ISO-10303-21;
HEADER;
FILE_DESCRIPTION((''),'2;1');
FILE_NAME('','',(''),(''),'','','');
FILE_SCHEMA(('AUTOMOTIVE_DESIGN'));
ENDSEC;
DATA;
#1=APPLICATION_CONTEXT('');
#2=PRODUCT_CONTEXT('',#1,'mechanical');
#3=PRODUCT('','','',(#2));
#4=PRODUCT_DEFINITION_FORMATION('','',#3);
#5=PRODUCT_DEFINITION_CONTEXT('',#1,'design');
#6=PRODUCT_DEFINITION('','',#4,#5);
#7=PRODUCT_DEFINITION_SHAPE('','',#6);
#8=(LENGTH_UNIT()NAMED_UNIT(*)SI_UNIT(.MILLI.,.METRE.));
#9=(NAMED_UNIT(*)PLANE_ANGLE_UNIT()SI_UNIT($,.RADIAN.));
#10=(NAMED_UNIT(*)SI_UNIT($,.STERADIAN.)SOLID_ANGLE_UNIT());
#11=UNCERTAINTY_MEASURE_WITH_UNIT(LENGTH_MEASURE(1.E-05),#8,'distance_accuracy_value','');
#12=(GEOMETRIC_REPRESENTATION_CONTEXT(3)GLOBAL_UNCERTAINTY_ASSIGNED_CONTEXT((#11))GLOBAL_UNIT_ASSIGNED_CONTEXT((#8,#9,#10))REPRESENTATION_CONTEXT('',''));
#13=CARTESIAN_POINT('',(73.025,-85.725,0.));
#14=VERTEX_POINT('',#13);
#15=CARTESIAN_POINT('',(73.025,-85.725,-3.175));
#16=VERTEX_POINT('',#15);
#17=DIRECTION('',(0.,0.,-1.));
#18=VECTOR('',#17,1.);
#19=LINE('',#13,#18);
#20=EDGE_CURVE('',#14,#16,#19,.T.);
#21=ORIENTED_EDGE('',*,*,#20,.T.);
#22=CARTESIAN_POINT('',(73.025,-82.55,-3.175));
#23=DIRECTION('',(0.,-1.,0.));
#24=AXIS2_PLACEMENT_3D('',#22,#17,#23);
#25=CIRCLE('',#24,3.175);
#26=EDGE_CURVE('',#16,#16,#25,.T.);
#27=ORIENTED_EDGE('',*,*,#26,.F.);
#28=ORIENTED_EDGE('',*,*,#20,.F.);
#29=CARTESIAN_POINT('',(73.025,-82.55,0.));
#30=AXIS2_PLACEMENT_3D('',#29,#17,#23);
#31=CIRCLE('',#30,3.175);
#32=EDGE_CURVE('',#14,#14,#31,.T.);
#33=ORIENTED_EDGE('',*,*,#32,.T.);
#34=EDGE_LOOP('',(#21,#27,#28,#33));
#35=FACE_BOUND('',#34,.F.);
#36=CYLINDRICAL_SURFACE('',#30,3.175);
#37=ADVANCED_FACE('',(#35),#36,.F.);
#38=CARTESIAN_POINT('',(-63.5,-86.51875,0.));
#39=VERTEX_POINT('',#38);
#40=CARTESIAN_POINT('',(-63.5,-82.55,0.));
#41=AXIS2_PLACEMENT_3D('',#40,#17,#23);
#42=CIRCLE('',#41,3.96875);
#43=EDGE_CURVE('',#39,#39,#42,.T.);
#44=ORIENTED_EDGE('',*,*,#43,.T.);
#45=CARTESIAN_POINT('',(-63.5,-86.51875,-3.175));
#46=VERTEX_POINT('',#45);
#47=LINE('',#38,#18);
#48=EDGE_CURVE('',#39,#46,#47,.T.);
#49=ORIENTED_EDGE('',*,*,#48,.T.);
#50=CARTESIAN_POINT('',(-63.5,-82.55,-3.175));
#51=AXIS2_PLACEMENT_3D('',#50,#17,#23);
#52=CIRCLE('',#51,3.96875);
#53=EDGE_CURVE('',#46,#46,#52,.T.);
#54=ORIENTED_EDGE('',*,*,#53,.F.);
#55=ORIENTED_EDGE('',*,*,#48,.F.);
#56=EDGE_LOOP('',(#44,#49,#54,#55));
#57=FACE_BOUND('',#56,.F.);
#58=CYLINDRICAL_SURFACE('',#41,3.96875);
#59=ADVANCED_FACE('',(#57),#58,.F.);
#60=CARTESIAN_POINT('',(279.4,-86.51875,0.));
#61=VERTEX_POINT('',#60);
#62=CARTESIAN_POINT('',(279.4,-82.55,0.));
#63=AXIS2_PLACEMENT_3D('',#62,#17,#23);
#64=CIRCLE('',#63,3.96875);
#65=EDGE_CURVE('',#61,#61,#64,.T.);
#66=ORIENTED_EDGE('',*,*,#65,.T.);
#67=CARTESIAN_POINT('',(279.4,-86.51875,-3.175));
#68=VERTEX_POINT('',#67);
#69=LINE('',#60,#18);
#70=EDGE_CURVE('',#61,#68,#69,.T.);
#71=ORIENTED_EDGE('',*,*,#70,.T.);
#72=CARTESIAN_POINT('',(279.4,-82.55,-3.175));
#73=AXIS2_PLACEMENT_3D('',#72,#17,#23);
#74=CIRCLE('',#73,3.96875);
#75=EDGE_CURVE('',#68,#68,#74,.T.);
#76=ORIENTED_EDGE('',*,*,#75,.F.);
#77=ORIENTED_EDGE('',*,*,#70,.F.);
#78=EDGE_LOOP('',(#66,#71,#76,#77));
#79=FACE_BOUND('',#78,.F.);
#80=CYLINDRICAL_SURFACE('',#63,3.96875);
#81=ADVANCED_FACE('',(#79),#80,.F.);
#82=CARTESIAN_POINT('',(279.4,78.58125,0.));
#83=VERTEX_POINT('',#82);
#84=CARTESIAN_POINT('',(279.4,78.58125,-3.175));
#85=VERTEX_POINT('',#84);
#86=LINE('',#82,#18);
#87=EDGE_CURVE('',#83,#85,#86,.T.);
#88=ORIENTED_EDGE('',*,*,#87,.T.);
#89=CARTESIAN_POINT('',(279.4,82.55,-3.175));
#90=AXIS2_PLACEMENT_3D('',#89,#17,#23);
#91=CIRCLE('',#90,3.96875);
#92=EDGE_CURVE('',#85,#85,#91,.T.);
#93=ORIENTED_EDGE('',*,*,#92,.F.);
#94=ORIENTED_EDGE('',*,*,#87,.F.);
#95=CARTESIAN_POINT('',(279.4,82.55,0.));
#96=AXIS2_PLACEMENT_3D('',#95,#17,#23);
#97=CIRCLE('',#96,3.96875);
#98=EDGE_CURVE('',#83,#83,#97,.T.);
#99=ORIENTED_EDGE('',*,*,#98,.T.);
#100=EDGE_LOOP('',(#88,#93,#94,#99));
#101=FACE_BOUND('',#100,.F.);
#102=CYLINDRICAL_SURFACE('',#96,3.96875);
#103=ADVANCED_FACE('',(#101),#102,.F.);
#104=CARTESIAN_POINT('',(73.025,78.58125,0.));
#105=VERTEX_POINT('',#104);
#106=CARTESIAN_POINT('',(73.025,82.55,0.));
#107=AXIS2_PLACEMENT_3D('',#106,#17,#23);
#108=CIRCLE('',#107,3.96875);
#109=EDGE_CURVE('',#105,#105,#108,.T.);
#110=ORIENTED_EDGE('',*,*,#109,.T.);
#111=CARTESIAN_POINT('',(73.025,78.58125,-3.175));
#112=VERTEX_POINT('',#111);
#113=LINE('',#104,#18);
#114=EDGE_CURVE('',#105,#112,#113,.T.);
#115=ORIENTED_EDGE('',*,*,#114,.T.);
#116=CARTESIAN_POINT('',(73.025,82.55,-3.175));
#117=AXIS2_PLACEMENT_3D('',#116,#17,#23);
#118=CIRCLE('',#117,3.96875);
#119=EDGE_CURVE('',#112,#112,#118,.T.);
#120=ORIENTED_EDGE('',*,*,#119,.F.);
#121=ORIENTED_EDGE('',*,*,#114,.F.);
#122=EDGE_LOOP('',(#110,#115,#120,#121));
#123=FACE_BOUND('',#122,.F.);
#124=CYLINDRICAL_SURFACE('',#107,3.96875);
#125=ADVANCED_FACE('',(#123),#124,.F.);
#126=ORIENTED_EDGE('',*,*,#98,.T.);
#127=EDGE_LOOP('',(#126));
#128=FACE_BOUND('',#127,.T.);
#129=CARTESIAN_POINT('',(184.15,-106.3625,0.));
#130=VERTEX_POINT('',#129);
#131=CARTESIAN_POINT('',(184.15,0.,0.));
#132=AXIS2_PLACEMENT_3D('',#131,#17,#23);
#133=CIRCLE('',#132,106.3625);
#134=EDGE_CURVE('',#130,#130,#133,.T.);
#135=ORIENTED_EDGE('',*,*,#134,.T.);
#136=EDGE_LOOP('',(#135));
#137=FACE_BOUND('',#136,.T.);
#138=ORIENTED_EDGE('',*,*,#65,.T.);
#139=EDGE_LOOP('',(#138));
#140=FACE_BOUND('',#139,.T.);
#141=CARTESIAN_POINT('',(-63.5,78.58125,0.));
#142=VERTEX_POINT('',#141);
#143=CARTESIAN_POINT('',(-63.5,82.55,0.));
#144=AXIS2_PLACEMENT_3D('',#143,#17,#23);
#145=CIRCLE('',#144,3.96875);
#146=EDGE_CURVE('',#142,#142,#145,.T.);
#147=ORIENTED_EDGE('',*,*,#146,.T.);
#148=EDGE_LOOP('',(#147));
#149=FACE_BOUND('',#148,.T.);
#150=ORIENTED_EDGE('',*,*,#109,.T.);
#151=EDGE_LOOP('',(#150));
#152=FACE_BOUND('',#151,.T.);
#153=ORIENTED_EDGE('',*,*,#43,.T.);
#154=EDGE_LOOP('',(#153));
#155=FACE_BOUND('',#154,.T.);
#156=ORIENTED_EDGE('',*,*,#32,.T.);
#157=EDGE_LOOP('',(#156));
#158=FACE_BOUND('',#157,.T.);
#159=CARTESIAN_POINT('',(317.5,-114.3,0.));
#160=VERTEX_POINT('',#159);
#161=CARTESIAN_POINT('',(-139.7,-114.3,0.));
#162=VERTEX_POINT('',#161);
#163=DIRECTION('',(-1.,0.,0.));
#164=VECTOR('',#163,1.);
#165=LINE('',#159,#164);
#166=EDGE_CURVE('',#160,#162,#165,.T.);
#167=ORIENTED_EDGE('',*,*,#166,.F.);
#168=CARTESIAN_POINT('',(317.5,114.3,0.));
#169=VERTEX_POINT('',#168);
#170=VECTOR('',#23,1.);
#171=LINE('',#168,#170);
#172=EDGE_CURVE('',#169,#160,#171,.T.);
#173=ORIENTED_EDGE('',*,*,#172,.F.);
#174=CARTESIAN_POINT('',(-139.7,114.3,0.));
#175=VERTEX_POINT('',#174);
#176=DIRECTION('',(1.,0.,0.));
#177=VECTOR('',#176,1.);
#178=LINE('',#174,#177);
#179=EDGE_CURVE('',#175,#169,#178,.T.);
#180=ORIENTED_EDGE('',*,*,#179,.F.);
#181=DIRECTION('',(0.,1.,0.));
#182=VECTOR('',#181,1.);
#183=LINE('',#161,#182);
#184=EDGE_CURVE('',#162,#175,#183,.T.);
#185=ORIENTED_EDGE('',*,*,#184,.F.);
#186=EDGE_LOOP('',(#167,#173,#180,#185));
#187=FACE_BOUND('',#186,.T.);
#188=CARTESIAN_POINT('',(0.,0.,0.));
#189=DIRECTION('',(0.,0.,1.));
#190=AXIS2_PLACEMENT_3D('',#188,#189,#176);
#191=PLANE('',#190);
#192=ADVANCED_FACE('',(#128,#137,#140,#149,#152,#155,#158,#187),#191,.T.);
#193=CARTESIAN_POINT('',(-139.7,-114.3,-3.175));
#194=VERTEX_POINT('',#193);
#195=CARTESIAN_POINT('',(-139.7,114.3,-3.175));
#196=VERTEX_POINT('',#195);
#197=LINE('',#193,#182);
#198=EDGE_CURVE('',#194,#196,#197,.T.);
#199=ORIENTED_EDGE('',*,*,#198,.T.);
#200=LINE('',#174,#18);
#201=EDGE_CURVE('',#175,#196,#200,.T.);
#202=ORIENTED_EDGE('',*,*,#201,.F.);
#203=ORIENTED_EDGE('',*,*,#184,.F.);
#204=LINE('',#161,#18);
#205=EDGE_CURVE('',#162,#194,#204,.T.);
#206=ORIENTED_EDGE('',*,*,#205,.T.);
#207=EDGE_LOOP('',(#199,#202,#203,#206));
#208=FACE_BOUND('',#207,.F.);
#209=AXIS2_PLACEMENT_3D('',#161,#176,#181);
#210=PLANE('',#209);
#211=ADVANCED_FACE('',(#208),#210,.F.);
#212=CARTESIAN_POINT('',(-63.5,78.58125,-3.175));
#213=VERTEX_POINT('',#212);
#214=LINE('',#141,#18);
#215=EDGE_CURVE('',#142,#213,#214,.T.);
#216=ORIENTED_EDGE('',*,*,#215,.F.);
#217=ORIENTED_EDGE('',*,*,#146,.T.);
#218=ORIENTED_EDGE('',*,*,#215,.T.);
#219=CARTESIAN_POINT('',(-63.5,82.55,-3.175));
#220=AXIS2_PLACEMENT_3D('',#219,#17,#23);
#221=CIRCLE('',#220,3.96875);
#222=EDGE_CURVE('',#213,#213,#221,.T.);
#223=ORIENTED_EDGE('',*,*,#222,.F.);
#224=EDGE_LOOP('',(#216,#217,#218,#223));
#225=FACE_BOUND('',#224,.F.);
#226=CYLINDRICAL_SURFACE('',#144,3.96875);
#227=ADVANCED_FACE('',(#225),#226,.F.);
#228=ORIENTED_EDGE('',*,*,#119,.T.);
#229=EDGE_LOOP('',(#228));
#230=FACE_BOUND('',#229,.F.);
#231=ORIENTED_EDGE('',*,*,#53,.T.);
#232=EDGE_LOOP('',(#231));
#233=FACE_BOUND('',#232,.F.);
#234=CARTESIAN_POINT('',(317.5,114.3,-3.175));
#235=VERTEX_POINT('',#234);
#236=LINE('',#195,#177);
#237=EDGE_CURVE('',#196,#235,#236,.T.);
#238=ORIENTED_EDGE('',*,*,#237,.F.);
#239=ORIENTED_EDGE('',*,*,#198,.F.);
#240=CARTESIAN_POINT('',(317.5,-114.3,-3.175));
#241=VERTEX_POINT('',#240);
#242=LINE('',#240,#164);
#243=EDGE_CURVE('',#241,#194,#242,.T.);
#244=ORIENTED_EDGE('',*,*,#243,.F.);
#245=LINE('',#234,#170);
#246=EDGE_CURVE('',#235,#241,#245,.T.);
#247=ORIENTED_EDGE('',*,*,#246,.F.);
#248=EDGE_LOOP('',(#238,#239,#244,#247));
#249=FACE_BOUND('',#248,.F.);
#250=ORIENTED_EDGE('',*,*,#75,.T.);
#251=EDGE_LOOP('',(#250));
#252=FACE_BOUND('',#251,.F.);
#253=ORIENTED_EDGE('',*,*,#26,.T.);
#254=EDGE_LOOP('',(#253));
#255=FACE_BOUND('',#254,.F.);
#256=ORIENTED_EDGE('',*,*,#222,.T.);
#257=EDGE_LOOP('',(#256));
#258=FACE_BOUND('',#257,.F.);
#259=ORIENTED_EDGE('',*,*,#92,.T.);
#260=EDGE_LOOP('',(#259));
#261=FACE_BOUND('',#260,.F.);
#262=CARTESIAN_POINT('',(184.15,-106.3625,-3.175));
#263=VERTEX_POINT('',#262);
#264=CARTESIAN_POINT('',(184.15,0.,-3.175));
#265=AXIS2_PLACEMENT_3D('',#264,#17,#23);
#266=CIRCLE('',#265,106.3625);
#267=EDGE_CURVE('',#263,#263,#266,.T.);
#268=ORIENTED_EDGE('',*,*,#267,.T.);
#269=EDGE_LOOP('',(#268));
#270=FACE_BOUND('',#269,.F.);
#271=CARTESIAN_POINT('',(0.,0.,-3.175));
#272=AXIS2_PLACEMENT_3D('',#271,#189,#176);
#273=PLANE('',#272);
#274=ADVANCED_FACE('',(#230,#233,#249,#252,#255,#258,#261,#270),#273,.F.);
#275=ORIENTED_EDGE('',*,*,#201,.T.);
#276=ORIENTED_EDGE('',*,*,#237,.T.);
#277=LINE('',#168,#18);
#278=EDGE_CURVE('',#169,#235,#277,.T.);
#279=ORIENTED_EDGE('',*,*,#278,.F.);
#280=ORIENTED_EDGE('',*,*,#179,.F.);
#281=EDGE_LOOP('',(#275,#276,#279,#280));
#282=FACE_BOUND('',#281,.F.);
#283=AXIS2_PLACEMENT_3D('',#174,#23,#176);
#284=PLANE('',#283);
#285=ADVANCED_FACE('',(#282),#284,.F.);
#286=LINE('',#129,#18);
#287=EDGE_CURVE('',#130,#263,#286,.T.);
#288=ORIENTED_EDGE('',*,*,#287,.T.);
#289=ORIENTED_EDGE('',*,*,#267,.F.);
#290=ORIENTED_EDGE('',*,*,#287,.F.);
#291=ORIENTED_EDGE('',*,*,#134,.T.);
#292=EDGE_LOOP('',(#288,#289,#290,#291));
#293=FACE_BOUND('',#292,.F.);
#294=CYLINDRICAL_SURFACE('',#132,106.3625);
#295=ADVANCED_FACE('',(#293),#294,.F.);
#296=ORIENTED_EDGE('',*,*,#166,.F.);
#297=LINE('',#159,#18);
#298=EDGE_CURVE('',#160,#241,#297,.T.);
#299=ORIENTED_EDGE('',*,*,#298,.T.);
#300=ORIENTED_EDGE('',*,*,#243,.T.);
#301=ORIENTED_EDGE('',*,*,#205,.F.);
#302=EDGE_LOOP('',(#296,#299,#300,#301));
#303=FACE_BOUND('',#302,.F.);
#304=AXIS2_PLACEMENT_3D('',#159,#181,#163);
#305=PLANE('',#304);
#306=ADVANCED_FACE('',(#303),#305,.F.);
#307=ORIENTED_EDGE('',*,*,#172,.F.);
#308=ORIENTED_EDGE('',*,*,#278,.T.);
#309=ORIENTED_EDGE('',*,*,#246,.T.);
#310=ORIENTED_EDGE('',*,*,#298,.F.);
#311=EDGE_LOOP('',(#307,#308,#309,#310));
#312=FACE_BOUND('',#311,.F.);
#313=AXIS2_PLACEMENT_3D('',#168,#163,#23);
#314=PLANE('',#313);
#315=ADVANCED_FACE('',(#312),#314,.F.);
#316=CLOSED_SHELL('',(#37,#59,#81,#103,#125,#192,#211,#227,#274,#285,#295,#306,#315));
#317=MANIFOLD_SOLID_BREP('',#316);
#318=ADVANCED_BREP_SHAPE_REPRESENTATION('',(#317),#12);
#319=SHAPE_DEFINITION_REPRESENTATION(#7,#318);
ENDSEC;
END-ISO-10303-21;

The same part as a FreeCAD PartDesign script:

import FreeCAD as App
import Part
import Sketcher

V = App.Vector
Q = App.Units.Quantity


def add_polygon(sketch, points):
    """Adds a closed chain of lines whose ends are joined by coincident constraints."""
    first, n = sketch.GeometryCount, len(points)
    for a, b in zip(points, points[1:] + points[:1]):
        sketch.addGeometry(Part.LineSegment(App.Vector(*a, 0), App.Vector(*b, 0)), False)
    for i in range(n):
        sketch.addConstraint(Sketcher.Constraint("Coincident", first + i, 2, first + (i + 1) % n, 1))

doc = App.newDocument("Part")
body = doc.addObject("PartDesign::Body", "Body")

# Sketch on XY plane
sketch1 = body.newObject("Sketcher::SketchObject", "Sketch")
sketch1.AttachmentSupport = (doc.getObject("XY_Plane"), [""])
sketch1.MapMode = "FlatFace"
add_polygon(sketch1, [(318, 114), (-140, 114), (-140, -114), (318, -114)])  # lines 0-3
sketch1.addConstraint(Sketcher.Constraint("Horizontal", 0))
sketch1.addConstraint(Sketcher.Constraint("Vertical", 1))
sketch1.addConstraint(Sketcher.Constraint("Horizontal", 2))
sketch1.addConstraint(Sketcher.Constraint("Vertical", 3))
sketch1.addConstraint(Sketcher.Constraint("DistanceX", 0, 2, 0, 1, Q("18 in")))
sketch1.addConstraint(Sketcher.Constraint("DistanceY", 1, 2, 1, 1, Q("9 in")))
sketch1.addConstraint(Sketcher.Constraint("DistanceX", 0, 2, -1, 1, Q("5.5 in")))
sketch1.addConstraint(Sketcher.Constraint("DistanceY", -1, 1, 0, 2, Q("4.5 in")))
pad1 = body.newObject("PartDesign::Pad", "Pad")
pad1.Profile = sketch1
pad1.Length = Q("0.125 in")
pad1.Reversed = True

# Sketch on XY plane
sketch2 = body.newObject("Sketcher::SketchObject", "Sketch001")
sketch2.AttachmentSupport = (doc.getObject("XY_Plane"), [""])
sketch2.MapMode = "FlatFace"
sketch2.addGeometry(Part.Circle(V(184, 0, 0), V(0, 0, 1), 106), False)
sketch2.addConstraint(Sketcher.Constraint("PointOnObject", 0, 3, -1))
sketch2.addConstraint(Sketcher.Constraint("Diameter", 0, Q("8.375 in")))
sketch2.addConstraint(Sketcher.Constraint("DistanceX", -1, 1, 0, 3, Q("7.25 in")))
doc.recompute()
hole = body.newObject("PartDesign::Hole", "Hole")
hole.Profile = sketch2
hole.ThreadType = "None"
hole.Diameter = Q("8.375 in")
hole.DepthType = "Dimension"
hole.Depth = Q("1 in")
hole.DrillPoint = "Angled"
hole.DrillPointAngle = 118

# Sketch on XY plane
sketch3 = body.newObject("Sketcher::SketchObject", "Sketch002")
sketch3.AttachmentSupport = (doc.getObject("XY_Plane"), [""])
sketch3.MapMode = "FlatFace"
sketch3.addGeometry(Part.Circle(V(-63.5, 82.5, 0), V(0, 0, 1), 4), False)
sketch3.addConstraint(Sketcher.Constraint("Diameter", 0, Q("0.3125 in")))
sketch3.addConstraint(Sketcher.Constraint("DistanceX", 0, 3, -1, 1, Q("2.5 in")))
sketch3.addConstraint(Sketcher.Constraint("DistanceY", -1, 1, 0, 3, Q("3.25 in")))
doc.recompute()
hole2 = body.newObject("PartDesign::Hole", "Hole001")
hole2.Profile = sketch3
hole2.ThreadType = "None"
hole2.Diameter = Q("0.3125 in")
hole2.DepthType = "Dimension"
hole2.Depth = Q("1 in")
hole2.DrillPoint = "Angled"
hole2.DrillPointAngle = 118

# Sketch on XY plane
sketch4 = body.newObject("Sketcher::SketchObject", "Sketch003")
sketch4.AttachmentSupport = (doc.getObject("XY_Plane"), [""])
sketch4.MapMode = "FlatFace"
sketch4.addGeometry(Part.Circle(V(-63.5, -82.5, 0), V(0, 0, 1), 4), False)
sketch4.addConstraint(Sketcher.Constraint("Diameter", 0, Q("0.3125 in")))
sketch4.addConstraint(Sketcher.Constraint("DistanceX", 0, 3, -1, 1, Q("2.5 in")))
sketch4.addConstraint(Sketcher.Constraint("DistanceY", 0, 3, -1, 1, Q("3.25 in")))
doc.recompute()
hole3 = body.newObject("PartDesign::Hole", "Hole002")
hole3.Profile = sketch4
hole3.ThreadType = "None"
hole3.Diameter = Q("0.3125 in")
hole3.DepthType = "Dimension"
hole3.Depth = Q("1 in")
hole3.DrillPoint = "Angled"
hole3.DrillPointAngle = 118

# Sketch on XY plane
sketch5 = body.newObject("Sketcher::SketchObject", "Sketch004")
sketch5.AttachmentSupport = (doc.getObject("XY_Plane"), [""])
sketch5.MapMode = "FlatFace"
sketch5.addGeometry(Part.Circle(V(73, 82.5, 0), V(0, 0, 1), 4), False)
sketch5.addConstraint(Sketcher.Constraint("Diameter", 0, Q("0.3125 in")))
sketch5.addConstraint(Sketcher.Constraint("DistanceY", -1, 1, 0, 3, Q("3.25 in")))
sketch5.addConstraint(Sketcher.Constraint("DistanceX", -1, 1, 0, 3, Q("2.875 in")))
doc.recompute()
hole4 = body.newObject("PartDesign::Hole", "Hole003")
hole4.Profile = sketch5
hole4.ThreadType = "None"
hole4.Diameter = Q("0.3125 in")
hole4.DepthType = "Dimension"
hole4.Depth = Q("1 in")
hole4.DrillPoint = "Angled"
hole4.DrillPointAngle = 118

# Sketch on XY plane
sketch6 = body.newObject("Sketcher::SketchObject", "Sketch005")
sketch6.AttachmentSupport = (doc.getObject("XY_Plane"), [""])
sketch6.MapMode = "FlatFace"
sketch6.addGeometry(Part.Circle(V(73, -82.5, 0), V(0, 0, 1), 3.2), False)
sketch6.addConstraint(Sketcher.Constraint("Diameter", 0, Q("0.25 in")))
sketch6.addConstraint(Sketcher.Constraint("DistanceY", 0, 3, -1, 1, Q("3.25 in")))
sketch6.addConstraint(Sketcher.Constraint("DistanceX", -1, 1, 0, 3, Q("2.875 in")))
doc.recompute()
hole5 = body.newObject("PartDesign::Hole", "Hole004")
hole5.Profile = sketch6
hole5.ThreadType = "None"
hole5.Diameter = Q("0.25 in")
hole5.DepthType = "Dimension"
hole5.Depth = Q("1 in")
hole5.DrillPoint = "Angled"
hole5.DrillPointAngle = 118

# Sketch on XY plane
sketch7 = body.newObject("Sketcher::SketchObject", "Sketch006")
sketch7.AttachmentSupport = (doc.getObject("XY_Plane"), [""])
sketch7.MapMode = "FlatFace"
sketch7.addGeometry(Part.Circle(V(279.4, 82.5, 0), V(0, 0, 1), 4), False)
sketch7.addConstraint(Sketcher.Constraint("Diameter", 0, Q("0.3125 in")))
sketch7.addConstraint(Sketcher.Constraint("DistanceX", -1, 1, 0, 3, Q("11 in")))
sketch7.addConstraint(Sketcher.Constraint("DistanceY", -1, 1, 0, 3, Q("3.25 in")))
doc.recompute()
hole6 = body.newObject("PartDesign::Hole", "Hole005")
hole6.Profile = sketch7
hole6.ThreadType = "None"
hole6.Diameter = Q("0.3125 in")
hole6.DepthType = "Dimension"
hole6.Depth = Q("1 in")
hole6.DrillPoint = "Angled"
hole6.DrillPointAngle = 118

# Sketch on XY plane
sketch8 = body.newObject("Sketcher::SketchObject", "Sketch007")
sketch8.AttachmentSupport = (doc.getObject("XY_Plane"), [""])
sketch8.MapMode = "FlatFace"
sketch8.addGeometry(Part.Circle(V(279.4, -82.5, 0), V(0, 0, 1), 4), False)
sketch8.addConstraint(Sketcher.Constraint("Diameter", 0, Q("0.3125 in")))
sketch8.addConstraint(Sketcher.Constraint("DistanceX", -1, 1, 0, 3, Q("11 in")))
sketch8.addConstraint(Sketcher.Constraint("DistanceY", 0, 3, -1, 1, Q("3.25 in")))
doc.recompute()
hole7 = body.newObject("PartDesign::Hole", "Hole006")
hole7.Profile = sketch8
hole7.ThreadType = "None"
hole7.Diameter = Q("0.3125 in")
hole7.DepthType = "Dimension"
hole7.Depth = Q("1 in")
hole7.DrillPoint = "Angled"
hole7.DrillPointAngle = 118

doc.recompute()
